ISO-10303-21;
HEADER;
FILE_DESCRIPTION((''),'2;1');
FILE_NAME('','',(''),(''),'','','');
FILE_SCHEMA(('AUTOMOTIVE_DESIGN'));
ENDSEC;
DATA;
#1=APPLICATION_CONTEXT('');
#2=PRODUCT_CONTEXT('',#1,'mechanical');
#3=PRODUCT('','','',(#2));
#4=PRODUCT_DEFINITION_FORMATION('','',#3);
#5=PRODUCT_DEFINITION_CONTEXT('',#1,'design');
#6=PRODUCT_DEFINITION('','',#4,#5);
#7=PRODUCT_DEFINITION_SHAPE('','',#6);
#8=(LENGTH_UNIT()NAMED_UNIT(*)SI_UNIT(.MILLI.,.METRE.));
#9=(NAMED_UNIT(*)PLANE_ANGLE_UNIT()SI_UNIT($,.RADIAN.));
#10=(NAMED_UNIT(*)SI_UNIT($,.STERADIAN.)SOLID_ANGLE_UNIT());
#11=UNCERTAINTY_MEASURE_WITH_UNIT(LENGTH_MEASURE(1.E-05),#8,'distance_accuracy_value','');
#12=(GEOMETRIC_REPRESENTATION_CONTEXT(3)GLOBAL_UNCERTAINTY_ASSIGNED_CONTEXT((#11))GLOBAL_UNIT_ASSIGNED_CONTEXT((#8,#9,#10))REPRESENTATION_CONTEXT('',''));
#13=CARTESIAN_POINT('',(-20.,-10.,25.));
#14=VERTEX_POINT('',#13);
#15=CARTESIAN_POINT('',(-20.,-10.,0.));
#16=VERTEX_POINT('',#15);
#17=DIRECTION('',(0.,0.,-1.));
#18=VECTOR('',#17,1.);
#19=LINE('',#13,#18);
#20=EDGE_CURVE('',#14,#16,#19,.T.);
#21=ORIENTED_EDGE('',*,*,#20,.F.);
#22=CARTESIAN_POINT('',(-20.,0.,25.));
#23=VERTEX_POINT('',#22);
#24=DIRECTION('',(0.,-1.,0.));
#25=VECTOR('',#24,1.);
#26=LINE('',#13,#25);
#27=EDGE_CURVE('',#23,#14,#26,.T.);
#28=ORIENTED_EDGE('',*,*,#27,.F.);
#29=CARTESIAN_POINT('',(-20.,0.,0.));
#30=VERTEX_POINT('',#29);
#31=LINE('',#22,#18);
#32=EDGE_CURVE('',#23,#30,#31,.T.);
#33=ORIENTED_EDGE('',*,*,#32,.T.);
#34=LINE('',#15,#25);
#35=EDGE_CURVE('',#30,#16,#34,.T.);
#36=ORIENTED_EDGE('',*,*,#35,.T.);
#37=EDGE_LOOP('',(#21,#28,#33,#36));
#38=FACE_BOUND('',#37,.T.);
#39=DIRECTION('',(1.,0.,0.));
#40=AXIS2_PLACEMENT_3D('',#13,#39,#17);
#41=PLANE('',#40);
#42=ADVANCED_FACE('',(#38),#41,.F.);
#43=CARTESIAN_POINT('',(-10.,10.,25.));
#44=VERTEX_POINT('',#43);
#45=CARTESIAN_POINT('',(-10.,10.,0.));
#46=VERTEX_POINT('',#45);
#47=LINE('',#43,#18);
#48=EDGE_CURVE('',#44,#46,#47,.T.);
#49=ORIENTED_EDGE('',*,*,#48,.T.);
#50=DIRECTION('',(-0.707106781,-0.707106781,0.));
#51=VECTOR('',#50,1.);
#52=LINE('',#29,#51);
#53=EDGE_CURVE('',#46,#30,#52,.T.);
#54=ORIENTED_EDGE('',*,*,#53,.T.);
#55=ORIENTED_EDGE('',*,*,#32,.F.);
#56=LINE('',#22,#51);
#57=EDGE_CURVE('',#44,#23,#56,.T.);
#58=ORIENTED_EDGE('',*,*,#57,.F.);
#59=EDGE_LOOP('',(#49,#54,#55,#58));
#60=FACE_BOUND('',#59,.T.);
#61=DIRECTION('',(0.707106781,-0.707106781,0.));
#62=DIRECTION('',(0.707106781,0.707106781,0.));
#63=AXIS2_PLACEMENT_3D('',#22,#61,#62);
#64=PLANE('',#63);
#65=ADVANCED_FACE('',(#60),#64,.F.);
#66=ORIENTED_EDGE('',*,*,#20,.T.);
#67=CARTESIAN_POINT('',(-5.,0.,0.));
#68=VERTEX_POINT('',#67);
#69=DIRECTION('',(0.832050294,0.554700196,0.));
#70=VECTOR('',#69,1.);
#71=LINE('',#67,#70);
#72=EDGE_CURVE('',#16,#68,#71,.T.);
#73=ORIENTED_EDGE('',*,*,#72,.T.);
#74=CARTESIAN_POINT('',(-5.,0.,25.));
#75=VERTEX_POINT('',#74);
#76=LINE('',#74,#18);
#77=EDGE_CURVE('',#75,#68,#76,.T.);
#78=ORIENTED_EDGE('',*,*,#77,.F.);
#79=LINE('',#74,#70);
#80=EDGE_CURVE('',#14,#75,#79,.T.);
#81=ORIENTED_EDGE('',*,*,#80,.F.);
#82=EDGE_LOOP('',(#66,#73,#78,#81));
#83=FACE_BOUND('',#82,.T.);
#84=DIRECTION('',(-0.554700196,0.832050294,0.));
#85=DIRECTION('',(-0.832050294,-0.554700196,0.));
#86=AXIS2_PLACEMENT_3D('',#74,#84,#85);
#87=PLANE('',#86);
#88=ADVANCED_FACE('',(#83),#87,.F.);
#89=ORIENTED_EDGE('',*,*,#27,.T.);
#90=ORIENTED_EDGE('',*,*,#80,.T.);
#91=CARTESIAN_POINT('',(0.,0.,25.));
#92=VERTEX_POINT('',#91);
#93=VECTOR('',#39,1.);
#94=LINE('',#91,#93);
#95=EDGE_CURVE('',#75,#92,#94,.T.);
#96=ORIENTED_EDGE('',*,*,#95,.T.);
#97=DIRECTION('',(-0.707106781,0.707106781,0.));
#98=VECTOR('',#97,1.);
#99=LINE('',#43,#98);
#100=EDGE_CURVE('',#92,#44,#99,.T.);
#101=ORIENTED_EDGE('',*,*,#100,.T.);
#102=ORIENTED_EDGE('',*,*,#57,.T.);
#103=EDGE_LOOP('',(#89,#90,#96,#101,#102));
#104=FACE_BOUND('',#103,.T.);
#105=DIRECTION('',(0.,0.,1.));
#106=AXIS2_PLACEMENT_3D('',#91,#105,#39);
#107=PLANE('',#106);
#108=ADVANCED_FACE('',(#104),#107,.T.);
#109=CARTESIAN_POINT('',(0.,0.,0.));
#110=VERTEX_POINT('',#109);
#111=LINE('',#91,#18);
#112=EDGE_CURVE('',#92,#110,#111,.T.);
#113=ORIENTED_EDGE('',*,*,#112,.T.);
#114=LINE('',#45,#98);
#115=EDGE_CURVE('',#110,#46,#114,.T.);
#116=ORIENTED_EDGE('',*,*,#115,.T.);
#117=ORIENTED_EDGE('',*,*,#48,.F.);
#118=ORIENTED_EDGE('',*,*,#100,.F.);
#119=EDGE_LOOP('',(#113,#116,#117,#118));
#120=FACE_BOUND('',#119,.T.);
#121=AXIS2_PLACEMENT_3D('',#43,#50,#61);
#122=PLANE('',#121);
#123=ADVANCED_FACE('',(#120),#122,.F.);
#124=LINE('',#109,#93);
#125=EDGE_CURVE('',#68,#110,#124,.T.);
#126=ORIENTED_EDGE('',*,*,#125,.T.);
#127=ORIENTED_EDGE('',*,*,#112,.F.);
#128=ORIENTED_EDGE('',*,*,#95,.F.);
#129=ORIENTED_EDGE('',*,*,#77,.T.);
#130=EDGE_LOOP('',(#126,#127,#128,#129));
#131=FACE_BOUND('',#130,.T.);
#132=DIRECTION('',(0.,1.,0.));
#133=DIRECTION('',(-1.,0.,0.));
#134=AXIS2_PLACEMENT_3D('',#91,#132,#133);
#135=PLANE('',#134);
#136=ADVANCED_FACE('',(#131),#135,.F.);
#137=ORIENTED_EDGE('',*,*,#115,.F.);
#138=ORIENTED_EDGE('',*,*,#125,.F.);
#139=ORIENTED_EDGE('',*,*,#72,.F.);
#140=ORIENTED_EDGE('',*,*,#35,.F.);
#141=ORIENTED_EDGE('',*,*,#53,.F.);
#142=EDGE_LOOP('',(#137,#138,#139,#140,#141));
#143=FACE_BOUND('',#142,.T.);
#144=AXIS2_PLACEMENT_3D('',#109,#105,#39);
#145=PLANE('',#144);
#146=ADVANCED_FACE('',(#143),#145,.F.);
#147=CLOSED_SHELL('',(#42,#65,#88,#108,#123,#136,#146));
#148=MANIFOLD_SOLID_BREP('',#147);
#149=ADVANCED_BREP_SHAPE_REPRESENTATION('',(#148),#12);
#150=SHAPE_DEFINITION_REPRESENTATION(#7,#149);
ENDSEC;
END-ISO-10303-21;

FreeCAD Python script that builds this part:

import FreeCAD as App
import Part
import Sketcher
from FreeCAD import Vector
Q = App.Units.Quantity

doc = App.newDocument("Part")
params = doc.addObject("Spreadsheet::Sheet", "Params")
for row, (alias, value) in enumerate([
    ("sketch1_width", "5 mm"),
    ("sketch1_height", "10 mm"),
    ("pad1_length", "25 mm"),
], start=1):
    params.set(f"A{row}", alias)
    params.set(f"B{row}", "=" + value)
    params.setAlias(f"B{row}", alias)

body = doc.addObject("PartDesign::Body", "Body")

sketch1 = doc.addObject("Sketcher::SketchObject", "Sketch")
body.addObject(sketch1)
sketch1.AttachmentSupport = (doc.XY_Plane, [""])
sketch1.MapMode = "FlatFace"
sketch1.addGeometry(Part.LineSegment(Vector(-10, 10, 0), Vector(-20, 0, 0)), False)
sketch1.addGeometry(Part.LineSegment(Vector(-20, 0, 0), Vector(-20, -10, 0)), False)
sketch1.addGeometry(Part.LineSegment(Vector(-20, -10, 0), Vector(-5, 0, 0)), False)
sketch1.addGeometry(Part.LineSegment(Vector(-5, 0, 0), Vector(0, 0, 0)), False)
sketch1.addGeometry(Part.LineSegment(Vector(0, 0, 0), Vector(-10, 10, 0)), False)
sketch1.addConstraint(Sketcher.Constraint("Coincident", 0, 2, 1, 1))
sketch1.addConstraint(Sketcher.Constraint("Coincident", 1, 2, 2, 1))
sketch1.addConstraint(Sketcher.Constraint("Coincident", 2, 2, 3, 1))
sketch1.addConstraint(Sketcher.Constraint("Coincident", 3, 2, 4, 1))
sketch1.addConstraint(Sketcher.Constraint("Coincident", 4, 2, 0, 1))
sketch1.addConstraint(Sketcher.Constraint("Vertical", 1))
sketch1.addConstraint(Sketcher.Constraint("Horizontal", 3))
sketch1.addConstraint(Sketcher.Constraint("Coincident", 3, 2, -1, 1))
sketch1.addConstraint(Sketcher.Constraint("PointOnObject", 0, 2, -1))
sketch1.addConstraint(Sketcher.Constraint("Perpendicular", 0, 4))
sketch1.addConstraint(Sketcher.Constraint("Equal", 0, 4))
sketch1.addConstraint(Sketcher.Constraint("DistanceX", 3, 1, 3, 2, Q("5 mm")))
sketch1.addConstraint(Sketcher.Constraint("DistanceY", 1, 2, 1, 1, Q("10 mm")))
sketch1.addConstraint(Sketcher.Constraint("DistanceX", 0, 2, -1, 1, Q("20 mm")))
sketch1.setExpression("Constraints[11]", "Params.sketch1_width")
sketch1.setExpression("Constraints[12]", "Params.sketch1_height")
pad1 = doc.addObject("PartDesign::Pad", "Pad")
body.addObject(pad1)
pad1.Profile = sketch1
pad1.setExpression("Length", "Params.pad1_length")

doc.recompute()
